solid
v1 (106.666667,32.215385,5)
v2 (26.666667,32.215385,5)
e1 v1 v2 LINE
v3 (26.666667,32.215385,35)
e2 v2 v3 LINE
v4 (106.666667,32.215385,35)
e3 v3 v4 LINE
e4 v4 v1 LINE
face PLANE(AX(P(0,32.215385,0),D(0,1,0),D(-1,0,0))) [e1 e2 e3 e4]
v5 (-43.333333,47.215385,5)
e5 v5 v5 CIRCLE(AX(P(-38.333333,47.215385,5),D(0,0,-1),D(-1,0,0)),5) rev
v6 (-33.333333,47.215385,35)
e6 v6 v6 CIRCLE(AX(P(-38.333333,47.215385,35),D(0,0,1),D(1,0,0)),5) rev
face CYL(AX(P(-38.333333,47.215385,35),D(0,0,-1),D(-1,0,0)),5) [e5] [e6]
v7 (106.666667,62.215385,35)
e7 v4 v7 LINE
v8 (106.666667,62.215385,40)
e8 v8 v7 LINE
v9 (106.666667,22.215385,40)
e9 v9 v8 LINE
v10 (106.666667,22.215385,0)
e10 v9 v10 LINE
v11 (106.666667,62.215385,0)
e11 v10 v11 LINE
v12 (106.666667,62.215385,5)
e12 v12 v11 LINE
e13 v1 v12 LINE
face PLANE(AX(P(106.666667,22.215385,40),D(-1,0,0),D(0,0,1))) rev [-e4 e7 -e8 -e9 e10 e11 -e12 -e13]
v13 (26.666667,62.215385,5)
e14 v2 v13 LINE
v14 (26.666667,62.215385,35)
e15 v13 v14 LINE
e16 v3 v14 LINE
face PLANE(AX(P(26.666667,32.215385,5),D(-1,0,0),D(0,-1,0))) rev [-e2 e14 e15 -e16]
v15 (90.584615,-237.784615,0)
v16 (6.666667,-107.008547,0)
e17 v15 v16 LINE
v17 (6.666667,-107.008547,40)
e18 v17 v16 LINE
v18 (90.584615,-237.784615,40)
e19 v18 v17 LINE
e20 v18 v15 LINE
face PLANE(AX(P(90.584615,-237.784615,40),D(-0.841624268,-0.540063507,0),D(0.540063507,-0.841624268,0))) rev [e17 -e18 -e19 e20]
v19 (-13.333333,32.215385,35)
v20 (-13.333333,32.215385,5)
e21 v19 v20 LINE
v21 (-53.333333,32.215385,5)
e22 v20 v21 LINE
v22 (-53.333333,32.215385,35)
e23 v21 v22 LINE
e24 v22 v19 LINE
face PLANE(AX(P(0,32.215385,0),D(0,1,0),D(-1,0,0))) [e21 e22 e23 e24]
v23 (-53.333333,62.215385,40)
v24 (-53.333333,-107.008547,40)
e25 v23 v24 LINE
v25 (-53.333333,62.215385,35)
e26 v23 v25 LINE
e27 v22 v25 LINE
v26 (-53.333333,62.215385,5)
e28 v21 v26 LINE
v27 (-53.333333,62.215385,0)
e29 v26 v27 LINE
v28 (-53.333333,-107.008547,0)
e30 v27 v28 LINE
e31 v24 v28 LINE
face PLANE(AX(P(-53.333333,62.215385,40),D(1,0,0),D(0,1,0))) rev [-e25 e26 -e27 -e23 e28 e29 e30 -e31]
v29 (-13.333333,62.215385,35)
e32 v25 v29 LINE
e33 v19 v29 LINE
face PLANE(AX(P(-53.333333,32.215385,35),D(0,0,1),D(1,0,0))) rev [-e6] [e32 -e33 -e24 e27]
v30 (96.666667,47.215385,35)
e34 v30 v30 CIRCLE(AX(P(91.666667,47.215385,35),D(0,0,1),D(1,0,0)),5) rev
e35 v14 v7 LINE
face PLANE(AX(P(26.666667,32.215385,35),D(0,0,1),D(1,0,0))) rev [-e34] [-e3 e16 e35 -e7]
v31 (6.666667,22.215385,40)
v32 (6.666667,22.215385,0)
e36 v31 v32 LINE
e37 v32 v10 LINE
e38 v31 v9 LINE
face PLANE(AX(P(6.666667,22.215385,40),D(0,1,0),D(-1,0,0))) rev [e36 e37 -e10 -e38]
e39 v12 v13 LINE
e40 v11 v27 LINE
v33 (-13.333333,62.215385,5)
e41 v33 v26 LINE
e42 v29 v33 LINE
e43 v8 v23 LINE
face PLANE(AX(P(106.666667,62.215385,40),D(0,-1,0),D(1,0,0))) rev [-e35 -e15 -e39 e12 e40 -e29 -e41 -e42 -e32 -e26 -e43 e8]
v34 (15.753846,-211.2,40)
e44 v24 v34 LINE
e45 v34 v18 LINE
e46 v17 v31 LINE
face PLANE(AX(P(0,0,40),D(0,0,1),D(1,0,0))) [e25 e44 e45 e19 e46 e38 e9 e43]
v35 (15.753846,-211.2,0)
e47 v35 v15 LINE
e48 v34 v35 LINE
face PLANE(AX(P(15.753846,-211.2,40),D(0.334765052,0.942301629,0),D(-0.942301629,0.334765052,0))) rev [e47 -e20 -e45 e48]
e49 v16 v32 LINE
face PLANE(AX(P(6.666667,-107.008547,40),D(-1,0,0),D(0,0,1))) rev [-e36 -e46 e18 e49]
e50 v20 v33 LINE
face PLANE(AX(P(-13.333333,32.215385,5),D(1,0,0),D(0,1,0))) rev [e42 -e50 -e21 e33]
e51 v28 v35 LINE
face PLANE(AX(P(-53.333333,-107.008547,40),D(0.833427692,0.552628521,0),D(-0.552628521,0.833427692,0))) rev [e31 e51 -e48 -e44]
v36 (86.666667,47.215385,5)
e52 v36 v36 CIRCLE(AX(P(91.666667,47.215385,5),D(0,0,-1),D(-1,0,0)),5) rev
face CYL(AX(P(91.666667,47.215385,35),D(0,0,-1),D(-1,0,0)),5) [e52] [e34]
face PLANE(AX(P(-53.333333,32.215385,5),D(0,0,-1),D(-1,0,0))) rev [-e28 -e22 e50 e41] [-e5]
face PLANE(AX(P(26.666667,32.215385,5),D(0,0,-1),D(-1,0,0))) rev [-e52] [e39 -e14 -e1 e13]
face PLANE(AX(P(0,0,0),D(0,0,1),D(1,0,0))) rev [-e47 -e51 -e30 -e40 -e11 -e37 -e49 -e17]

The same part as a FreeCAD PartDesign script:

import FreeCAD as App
import Part
import Sketcher
from FreeCAD import Vector
Q = App.Units.Quantity


def add_polygon(sketch, points):
    """Adds a closed chain of lines whose ends are joined by coincident constraints."""
    first, n = sketch.GeometryCount, len(points)
    for a, b in zip(points, points[1:] + points[:1]):
        sketch.addGeometry(Part.LineSegment(App.Vector(*a, 0), App.Vector(*b, 0)), False)
    for i in range(n):
        sketch.addConstraint(Sketcher.Constraint("Coincident", first + i, 2, first + (i + 1) % n, 1))

doc = App.newDocument("Part")
params = doc.addObject("Spreadsheet::Sheet", "Params")
for row, (alias, value) in enumerate([
    ("sketch1_width", "160 mm"),
    ("sketch1_width2", "100 mm"),
    ("sketch1_height", "40 mm"),
    ("pad1_length", "40 mm"),
    ("sketch2_width", "40 mm"),
    ("sketch2_height", "30 mm"),
    ("pocket1_length", "30 mm"),
    ("sketch3_diameter", "10 mm"),
    ("pad2_length", "30 mm"),
    ("sketch4_width", "80 mm"),
    ("sketch4_height", "30 mm"),
    ("pocket2_length", "30 mm"),
    ("sketch5_diameter", "10 mm"),
    ("pad3_length", "30 mm"),
], start=1):
    params.set(f"A{row}", alias)
    params.set(f"B{row}", "=" + value)
    params.setAlias(f"B{row}", alias)

body = doc.addObject("PartDesign::Body", "Body")

# Sketch on XY plane
sketch1 = body.newObject("Sketcher::SketchObject", "Sketch")
sketch1.AttachmentSupport = (doc.getObject("XY_Plane"), [""])
sketch1.MapMode = "FlatFace"
add_polygon(sketch1, [(106.666667, 22.215385), (106.666667, 62.215385), (-53.333333, 62.215385), (-53.333333, -107.008547), (15.753846, -211.2), (90.584615, -237.784615), (6.666667, -107.008547), (6.666667, 22.215385)])  # lines 0-7
sketch1.addConstraint(Sketcher.Constraint("Vertical", 0))
sketch1.addConstraint(Sketcher.Constraint("Horizontal", 1))
sketch1.addConstraint(Sketcher.Constraint("Vertical", 2))
sketch1.addConstraint(Sketcher.Constraint("Vertical", 6))
sketch1.addConstraint(Sketcher.Constraint("Horizontal", 7))
sketch1.addConstraint(Sketcher.Constraint("Horizontal", 2, 2, 5, 2))
sketch1.addConstraint(Sketcher.Constraint("DistanceX", 1, 2, 1, 1, Q("160 mm")))
sketch1.addConstraint(Sketcher.Constraint("DistanceX", 7, 1, 7, 2, Q("100 mm")))
sketch1.addConstraint(Sketcher.Constraint("DistanceY", 0, 1, 0, 2, Q("40 mm")))
sketch1.addConstraint(Sketcher.Constraint("DistanceY", 4, 2, 0, 2, Q("300 mm")))
sketch1.addConstraint(Sketcher.Constraint("DistanceY", 3, 2, -1, 1, Q("211.2 mm")))
sketch1.addConstraint(Sketcher.Constraint("DistanceY", 2, 2, 2, 1, Q("169.223932 mm")))
sketch1.addConstraint(Sketcher.Constraint("Distance", 3, Q("125.015588 mm")))
sketch1.addConstraint(Sketcher.Constraint("DistanceX", 2, 2, 3, 2, Q("69.087179 mm")))
sketch1.addConstraint(Sketcher.Constraint("DistanceX", 3, 2, 4, 2, Q("74.830769 mm")))
sketch1.addConstraint(Sketcher.Constraint("DistanceX", -1, 1, 0, 2, Q("106.666667 mm")))
sketch1.setExpression("Constraints[14]", "Params.sketch1_width")
sketch1.setExpression("Constraints[15]", "Params.sketch1_width2")
sketch1.setExpression("Constraints[16]", "Params.sketch1_height")
pad1 = body.newObject("PartDesign::Pad", "Pad")
pad1.Profile = sketch1
pad1.setExpression("Length", "Params.pad1_length")

# Sketch on XZ plane
sketch2 = body.newObject("Sketcher::SketchObject", "Sketch001")
sketch2.AttachmentSupport = (doc.getObject("XZ_Plane"), [""])
sketch2.MapMode = "FlatFace"
sketch2.AttachmentOffset = App.Placement(Vector(0, 0, -62.215385), App.Rotation())
add_polygon(sketch2, [(-53.333333, 5), (-53.333333, 35), (-13.333333, 35), (-13.333333, 5)])  # lines 0-3
sketch2.addConstraint(Sketcher.Constraint("Vertical", 0))
sketch2.addConstraint(Sketcher.Constraint("Horizontal", 1))
sketch2.addConstraint(Sketcher.Constraint("Vertical", 2))
sketch2.addConstraint(Sketcher.Constraint("Horizontal", 3))
sketch2.addConstraint(Sketcher.Constraint("DistanceX", 1, 1, 1, 2, Q("40 mm")))
sketch2.addConstraint(Sketcher.Constraint("DistanceY", 0, 1, 0, 2, Q("30 mm")))
sketch2.addConstraint(Sketcher.Constraint("DistanceY", -1, 1, 0, 2, Q("35 mm")))
sketch2.addConstraint(Sketcher.Constraint("DistanceX", 0, 2, -1, 1, Q("53.333333 mm")))
sketch2.setExpression("Constraints[8]", "Params.sketch2_width")
sketch2.setExpression("Constraints[9]", "Params.sketch2_height")
pocket1 = body.newObject("PartDesign::Pocket", "Pocket")
pocket1.Profile = sketch2
pocket1.setExpression("Length", "Params.pocket1_length")
pocket1.Reversed = True

# Sketch on XY plane
sketch3 = body.newObject("Sketcher::SketchObject", "Sketch002")
sketch3.AttachmentSupport = (doc.getObject("XY_Plane"), [""])
sketch3.MapMode = "FlatFace"
sketch3.AttachmentOffset = App.Placement(Vector(0, 0, 5), App.Rotation())
sketch3.addGeometry(Part.Circle(Vector(-38.333333, 47.215385, 0), Vector(0, 0, 1), 5), False)
sketch3.addConstraint(Sketcher.Constraint("Diameter", 0, Q("10 mm")))
sketch3.addConstraint(Sketcher.Constraint("DistanceX", 0, 3, -1, 1, Q("38.333333 mm")))
sketch3.addConstraint(Sketcher.Constraint("DistanceY", -1, 1, 0, 3, Q("47.215385 mm")))
sketch3.setExpression("Constraints[0]", "Params.sketch3_diameter")
pad2 = body.newObject("PartDesign::Pad", "Pad001")
pad2.Profile = sketch3
pad2.setExpression("Length", "Params.pad2_length")

# Sketch on XZ plane
sketch4 = body.newObject("Sketcher::SketchObject", "Sketch003")
sketch4.AttachmentSupport = (doc.getObject("XZ_Plane"), [""])
sketch4.MapMode = "FlatFace"
sketch4.AttachmentOffset = App.Placement(Vector(0, 0, -62.215385), App.Rotation())
add_polygon(sketch4, [(26.666667, 5), (26.666667, 35), (106.666667, 35), (106.666667, 5)])  # lines 0-3
sketch4.addConstraint(Sketcher.Constraint("Vertical", 0))
sketch4.addConstraint(Sketcher.Constraint("Horizontal", 1))
sketch4.addConstraint(Sketcher.Constraint("Vertical", 2))
sketch4.addConstraint(Sketcher.Constraint("Horizontal", 3))
sketch4.addConstraint(Sketcher.Constraint("DistanceX", 1, 1, 1, 2, Q("80 mm")))
sketch4.addConstraint(Sketcher.Constraint("DistanceY", 0, 1, 0, 2, Q("30 mm")))
sketch4.addConstraint(Sketcher.Constraint("DistanceY", -1, 1, 0, 2, Q("35 mm")))
sketch4.addConstraint(Sketcher.Constraint("DistanceX", -1, 1, 0, 2, Q("26.666667 mm")))
sketch4.setExpression("Constraints[8]", "Params.sketch4_width")
sketch4.setExpression("Constraints[9]", "Params.sketch4_height")
pocket2 = body.newObject("PartDesign::Pocket", "Pocket001")
pocket2.Profile = sketch4
pocket2.setExpression("Length", "Params.pocket2_length")
pocket2.Reversed = True

# Sketch on XY plane
sketch5 = body.newObject("Sketcher::SketchObject", "Sketch004")
sketch5.AttachmentSupport = (doc.getObject("XY_Plane"), [""])
sketch5.MapMode = "FlatFace"
sketch5.AttachmentOffset = App.Placement(Vector(0, 0, 5), App.Rotation())
sketch5.addGeometry(Part.Circle(Vector(91.666667, 47.215385, 0), Vector(0, 0, 1), 5), False)
sketch5.addConstraint(Sketcher.Constraint("Diameter", 0, Q("10 mm")))
sketch5.addConstraint(Sketcher.Constraint("DistanceX", -1, 1, 0, 3, Q("91.666667 mm")))
sketch5.addConstraint(Sketcher.Constraint("DistanceY", -1, 1, 0, 3, Q("47.215385 mm")))
sketch5.setExpression("Constraints[0]", "Params.sketch5_diameter")
pad3 = body.newObject("PartDesign::Pad", "Pad002")
pad3.Profile = sketch5
pad3.setExpression("Length", "Params.pad3_length")

doc.recompute()
